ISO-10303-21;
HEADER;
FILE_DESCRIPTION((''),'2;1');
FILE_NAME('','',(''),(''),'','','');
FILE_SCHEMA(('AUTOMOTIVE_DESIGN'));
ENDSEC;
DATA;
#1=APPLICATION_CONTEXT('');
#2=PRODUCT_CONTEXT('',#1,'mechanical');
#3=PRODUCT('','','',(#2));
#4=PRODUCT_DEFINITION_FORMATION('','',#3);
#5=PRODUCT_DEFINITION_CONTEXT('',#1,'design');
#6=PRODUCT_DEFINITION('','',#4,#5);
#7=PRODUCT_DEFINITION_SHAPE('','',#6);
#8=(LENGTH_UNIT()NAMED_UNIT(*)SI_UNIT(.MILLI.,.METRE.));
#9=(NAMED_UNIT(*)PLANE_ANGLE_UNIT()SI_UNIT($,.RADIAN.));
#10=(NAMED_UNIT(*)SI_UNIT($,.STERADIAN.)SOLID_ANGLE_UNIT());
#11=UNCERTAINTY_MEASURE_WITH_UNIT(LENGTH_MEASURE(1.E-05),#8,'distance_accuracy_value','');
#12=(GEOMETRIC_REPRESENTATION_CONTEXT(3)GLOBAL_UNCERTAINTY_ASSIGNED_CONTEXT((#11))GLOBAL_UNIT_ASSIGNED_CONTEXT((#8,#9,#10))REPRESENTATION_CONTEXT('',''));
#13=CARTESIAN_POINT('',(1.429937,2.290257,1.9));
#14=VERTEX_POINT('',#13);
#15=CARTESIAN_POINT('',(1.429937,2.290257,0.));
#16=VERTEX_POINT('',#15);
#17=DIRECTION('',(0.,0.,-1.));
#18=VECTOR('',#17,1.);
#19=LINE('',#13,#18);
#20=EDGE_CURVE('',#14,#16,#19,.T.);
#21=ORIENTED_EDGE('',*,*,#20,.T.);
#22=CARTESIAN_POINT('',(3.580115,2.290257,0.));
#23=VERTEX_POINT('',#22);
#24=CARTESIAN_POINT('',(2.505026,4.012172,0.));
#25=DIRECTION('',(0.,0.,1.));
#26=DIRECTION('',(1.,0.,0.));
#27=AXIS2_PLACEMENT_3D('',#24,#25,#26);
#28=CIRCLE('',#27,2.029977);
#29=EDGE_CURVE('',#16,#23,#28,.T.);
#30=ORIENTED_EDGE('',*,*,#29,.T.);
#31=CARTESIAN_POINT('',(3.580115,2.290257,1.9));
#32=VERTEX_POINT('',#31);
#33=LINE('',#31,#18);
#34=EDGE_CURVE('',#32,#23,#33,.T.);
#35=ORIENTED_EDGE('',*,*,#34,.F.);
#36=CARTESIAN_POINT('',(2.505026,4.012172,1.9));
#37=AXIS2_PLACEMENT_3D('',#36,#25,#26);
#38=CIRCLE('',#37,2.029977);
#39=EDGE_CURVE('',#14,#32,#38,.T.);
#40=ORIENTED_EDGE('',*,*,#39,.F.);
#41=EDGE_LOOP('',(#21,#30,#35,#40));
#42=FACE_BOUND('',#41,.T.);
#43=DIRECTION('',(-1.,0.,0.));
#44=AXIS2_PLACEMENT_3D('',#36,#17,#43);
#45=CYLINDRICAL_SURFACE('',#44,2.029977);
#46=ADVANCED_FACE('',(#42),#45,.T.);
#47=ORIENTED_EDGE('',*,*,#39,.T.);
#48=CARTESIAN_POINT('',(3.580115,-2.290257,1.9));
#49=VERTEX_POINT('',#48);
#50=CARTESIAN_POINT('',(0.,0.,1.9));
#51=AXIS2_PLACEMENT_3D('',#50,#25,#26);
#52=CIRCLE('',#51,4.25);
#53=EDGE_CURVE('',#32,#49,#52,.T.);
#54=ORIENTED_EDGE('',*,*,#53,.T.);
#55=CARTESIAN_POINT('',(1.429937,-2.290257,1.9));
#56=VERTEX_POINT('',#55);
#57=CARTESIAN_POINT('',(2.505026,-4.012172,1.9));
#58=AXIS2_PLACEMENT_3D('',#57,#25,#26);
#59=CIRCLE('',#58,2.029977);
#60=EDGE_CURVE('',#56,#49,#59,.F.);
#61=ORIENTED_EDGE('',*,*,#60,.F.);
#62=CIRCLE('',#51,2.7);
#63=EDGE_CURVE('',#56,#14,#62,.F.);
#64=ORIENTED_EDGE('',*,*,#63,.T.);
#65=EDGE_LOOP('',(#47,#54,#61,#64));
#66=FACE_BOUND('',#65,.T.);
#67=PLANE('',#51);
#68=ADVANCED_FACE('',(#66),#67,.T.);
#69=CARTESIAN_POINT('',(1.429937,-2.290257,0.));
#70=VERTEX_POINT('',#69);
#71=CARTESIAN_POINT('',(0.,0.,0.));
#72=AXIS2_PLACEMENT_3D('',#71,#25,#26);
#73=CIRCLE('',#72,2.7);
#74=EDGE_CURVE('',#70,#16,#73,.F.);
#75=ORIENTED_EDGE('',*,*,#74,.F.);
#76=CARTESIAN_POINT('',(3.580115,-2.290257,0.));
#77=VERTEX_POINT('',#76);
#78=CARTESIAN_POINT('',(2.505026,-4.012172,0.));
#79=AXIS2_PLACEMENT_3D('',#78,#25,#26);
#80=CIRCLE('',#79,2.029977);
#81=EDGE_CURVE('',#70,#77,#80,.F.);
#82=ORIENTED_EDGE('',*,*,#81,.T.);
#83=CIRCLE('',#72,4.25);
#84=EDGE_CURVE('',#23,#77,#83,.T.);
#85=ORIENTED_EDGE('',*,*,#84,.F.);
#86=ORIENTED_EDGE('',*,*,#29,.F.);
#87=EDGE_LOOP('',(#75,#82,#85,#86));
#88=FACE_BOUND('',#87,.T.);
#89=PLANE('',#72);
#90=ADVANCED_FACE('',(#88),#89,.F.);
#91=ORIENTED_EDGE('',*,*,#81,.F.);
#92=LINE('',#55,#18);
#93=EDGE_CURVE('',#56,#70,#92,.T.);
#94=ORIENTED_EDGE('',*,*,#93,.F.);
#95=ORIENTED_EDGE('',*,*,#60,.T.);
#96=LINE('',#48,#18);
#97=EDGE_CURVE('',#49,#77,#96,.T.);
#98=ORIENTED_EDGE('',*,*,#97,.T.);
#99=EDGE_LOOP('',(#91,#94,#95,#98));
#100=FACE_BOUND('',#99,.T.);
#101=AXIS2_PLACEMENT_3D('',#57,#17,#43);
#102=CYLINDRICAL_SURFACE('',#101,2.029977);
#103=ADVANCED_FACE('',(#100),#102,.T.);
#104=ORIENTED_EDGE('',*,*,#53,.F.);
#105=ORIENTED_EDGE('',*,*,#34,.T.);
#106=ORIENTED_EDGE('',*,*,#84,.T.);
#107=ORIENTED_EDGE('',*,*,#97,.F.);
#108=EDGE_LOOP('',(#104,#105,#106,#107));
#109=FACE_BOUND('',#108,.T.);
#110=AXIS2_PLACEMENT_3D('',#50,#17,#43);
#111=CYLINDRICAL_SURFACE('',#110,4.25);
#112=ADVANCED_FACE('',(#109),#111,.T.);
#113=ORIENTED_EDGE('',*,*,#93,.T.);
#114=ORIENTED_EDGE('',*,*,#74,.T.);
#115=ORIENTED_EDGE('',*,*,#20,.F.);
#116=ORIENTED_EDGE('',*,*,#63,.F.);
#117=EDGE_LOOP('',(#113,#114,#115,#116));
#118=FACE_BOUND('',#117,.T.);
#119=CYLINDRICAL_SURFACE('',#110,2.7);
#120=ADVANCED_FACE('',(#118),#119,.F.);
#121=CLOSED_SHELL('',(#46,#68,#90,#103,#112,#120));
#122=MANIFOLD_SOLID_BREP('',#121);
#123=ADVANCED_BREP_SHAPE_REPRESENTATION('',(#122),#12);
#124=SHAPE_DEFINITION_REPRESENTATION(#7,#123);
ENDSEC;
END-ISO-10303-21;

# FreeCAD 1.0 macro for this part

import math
import FreeCAD as App
import Part
import Sketcher

V = App.Vector
Q = App.Units.Quantity

doc = App.newDocument("Part")
body = doc.addObject("PartDesign::Body", "Body")

sketch1 = body.newObject("Sketcher::SketchObject", "Sketch")
sketch1.AttachmentSupport = (doc.getObject("XY_Plane"), [""])
sketch1.MapMode = "FlatFace"
sketch1.addGeometry([
    Part.ArcOfCircle(Part.Circle(V(0, 0, 0), V(0, 0, 1), 2.7), math.radians(58.021133), math.radians(301.978867)),
    Part.ArcOfCircle(Part.Circle(V(2.505026, 4.012172, 0), V(0, 0, 1), 2.029977), math.radians(-121.978867), math.radians(-58.021133)),
    Part.ArcOfCircle(Part.Circle(V(0, 0, 0), V(0, 0, 1), 4.25), math.radians(32.607707), math.radians(327.392293)),
    Part.ArcOfCircle(Part.Circle(V(2.505026, -4.012172, 0), V(0, 0, 1), 2.029977), math.radians(58.021133), math.radians(121.978867)),
], False)
sketch1.addConstraint([
    Sketcher.Constraint("Tangent", 0, 1, 1, 1),
    Sketcher.Constraint("Coincident", 1, 2, 2, 1),
    Sketcher.Constraint("Coincident", 2, 2, 3, 1),
    Sketcher.Constraint("Tangent", 3, 2, 0, 2),
    Sketcher.Constraint("Coincident", 0, 3, -1, 1),
    Sketcher.Constraint("Coincident", 2, 3, -1, 1),
    Sketcher.Constraint("Equal", 1, 3),
    Sketcher.Constraint("Horizontal", 0, 1, 1, 2),
    Sketcher.Constraint("Horizontal", 2, 2, 3, 2),
    Sketcher.Constraint("Radius", 0, Q("2.7 mm")),
    Sketcher.Constraint("Radius", 2, Q("4.25 mm")),
    Sketcher.Constraint("Radius", 1, Q("2.029977 mm")),
])
pad1 = body.newObject("PartDesign::Pad", "Pad")
pad1.Profile = sketch1
pad1.Length = 1.9

doc.recompute()
